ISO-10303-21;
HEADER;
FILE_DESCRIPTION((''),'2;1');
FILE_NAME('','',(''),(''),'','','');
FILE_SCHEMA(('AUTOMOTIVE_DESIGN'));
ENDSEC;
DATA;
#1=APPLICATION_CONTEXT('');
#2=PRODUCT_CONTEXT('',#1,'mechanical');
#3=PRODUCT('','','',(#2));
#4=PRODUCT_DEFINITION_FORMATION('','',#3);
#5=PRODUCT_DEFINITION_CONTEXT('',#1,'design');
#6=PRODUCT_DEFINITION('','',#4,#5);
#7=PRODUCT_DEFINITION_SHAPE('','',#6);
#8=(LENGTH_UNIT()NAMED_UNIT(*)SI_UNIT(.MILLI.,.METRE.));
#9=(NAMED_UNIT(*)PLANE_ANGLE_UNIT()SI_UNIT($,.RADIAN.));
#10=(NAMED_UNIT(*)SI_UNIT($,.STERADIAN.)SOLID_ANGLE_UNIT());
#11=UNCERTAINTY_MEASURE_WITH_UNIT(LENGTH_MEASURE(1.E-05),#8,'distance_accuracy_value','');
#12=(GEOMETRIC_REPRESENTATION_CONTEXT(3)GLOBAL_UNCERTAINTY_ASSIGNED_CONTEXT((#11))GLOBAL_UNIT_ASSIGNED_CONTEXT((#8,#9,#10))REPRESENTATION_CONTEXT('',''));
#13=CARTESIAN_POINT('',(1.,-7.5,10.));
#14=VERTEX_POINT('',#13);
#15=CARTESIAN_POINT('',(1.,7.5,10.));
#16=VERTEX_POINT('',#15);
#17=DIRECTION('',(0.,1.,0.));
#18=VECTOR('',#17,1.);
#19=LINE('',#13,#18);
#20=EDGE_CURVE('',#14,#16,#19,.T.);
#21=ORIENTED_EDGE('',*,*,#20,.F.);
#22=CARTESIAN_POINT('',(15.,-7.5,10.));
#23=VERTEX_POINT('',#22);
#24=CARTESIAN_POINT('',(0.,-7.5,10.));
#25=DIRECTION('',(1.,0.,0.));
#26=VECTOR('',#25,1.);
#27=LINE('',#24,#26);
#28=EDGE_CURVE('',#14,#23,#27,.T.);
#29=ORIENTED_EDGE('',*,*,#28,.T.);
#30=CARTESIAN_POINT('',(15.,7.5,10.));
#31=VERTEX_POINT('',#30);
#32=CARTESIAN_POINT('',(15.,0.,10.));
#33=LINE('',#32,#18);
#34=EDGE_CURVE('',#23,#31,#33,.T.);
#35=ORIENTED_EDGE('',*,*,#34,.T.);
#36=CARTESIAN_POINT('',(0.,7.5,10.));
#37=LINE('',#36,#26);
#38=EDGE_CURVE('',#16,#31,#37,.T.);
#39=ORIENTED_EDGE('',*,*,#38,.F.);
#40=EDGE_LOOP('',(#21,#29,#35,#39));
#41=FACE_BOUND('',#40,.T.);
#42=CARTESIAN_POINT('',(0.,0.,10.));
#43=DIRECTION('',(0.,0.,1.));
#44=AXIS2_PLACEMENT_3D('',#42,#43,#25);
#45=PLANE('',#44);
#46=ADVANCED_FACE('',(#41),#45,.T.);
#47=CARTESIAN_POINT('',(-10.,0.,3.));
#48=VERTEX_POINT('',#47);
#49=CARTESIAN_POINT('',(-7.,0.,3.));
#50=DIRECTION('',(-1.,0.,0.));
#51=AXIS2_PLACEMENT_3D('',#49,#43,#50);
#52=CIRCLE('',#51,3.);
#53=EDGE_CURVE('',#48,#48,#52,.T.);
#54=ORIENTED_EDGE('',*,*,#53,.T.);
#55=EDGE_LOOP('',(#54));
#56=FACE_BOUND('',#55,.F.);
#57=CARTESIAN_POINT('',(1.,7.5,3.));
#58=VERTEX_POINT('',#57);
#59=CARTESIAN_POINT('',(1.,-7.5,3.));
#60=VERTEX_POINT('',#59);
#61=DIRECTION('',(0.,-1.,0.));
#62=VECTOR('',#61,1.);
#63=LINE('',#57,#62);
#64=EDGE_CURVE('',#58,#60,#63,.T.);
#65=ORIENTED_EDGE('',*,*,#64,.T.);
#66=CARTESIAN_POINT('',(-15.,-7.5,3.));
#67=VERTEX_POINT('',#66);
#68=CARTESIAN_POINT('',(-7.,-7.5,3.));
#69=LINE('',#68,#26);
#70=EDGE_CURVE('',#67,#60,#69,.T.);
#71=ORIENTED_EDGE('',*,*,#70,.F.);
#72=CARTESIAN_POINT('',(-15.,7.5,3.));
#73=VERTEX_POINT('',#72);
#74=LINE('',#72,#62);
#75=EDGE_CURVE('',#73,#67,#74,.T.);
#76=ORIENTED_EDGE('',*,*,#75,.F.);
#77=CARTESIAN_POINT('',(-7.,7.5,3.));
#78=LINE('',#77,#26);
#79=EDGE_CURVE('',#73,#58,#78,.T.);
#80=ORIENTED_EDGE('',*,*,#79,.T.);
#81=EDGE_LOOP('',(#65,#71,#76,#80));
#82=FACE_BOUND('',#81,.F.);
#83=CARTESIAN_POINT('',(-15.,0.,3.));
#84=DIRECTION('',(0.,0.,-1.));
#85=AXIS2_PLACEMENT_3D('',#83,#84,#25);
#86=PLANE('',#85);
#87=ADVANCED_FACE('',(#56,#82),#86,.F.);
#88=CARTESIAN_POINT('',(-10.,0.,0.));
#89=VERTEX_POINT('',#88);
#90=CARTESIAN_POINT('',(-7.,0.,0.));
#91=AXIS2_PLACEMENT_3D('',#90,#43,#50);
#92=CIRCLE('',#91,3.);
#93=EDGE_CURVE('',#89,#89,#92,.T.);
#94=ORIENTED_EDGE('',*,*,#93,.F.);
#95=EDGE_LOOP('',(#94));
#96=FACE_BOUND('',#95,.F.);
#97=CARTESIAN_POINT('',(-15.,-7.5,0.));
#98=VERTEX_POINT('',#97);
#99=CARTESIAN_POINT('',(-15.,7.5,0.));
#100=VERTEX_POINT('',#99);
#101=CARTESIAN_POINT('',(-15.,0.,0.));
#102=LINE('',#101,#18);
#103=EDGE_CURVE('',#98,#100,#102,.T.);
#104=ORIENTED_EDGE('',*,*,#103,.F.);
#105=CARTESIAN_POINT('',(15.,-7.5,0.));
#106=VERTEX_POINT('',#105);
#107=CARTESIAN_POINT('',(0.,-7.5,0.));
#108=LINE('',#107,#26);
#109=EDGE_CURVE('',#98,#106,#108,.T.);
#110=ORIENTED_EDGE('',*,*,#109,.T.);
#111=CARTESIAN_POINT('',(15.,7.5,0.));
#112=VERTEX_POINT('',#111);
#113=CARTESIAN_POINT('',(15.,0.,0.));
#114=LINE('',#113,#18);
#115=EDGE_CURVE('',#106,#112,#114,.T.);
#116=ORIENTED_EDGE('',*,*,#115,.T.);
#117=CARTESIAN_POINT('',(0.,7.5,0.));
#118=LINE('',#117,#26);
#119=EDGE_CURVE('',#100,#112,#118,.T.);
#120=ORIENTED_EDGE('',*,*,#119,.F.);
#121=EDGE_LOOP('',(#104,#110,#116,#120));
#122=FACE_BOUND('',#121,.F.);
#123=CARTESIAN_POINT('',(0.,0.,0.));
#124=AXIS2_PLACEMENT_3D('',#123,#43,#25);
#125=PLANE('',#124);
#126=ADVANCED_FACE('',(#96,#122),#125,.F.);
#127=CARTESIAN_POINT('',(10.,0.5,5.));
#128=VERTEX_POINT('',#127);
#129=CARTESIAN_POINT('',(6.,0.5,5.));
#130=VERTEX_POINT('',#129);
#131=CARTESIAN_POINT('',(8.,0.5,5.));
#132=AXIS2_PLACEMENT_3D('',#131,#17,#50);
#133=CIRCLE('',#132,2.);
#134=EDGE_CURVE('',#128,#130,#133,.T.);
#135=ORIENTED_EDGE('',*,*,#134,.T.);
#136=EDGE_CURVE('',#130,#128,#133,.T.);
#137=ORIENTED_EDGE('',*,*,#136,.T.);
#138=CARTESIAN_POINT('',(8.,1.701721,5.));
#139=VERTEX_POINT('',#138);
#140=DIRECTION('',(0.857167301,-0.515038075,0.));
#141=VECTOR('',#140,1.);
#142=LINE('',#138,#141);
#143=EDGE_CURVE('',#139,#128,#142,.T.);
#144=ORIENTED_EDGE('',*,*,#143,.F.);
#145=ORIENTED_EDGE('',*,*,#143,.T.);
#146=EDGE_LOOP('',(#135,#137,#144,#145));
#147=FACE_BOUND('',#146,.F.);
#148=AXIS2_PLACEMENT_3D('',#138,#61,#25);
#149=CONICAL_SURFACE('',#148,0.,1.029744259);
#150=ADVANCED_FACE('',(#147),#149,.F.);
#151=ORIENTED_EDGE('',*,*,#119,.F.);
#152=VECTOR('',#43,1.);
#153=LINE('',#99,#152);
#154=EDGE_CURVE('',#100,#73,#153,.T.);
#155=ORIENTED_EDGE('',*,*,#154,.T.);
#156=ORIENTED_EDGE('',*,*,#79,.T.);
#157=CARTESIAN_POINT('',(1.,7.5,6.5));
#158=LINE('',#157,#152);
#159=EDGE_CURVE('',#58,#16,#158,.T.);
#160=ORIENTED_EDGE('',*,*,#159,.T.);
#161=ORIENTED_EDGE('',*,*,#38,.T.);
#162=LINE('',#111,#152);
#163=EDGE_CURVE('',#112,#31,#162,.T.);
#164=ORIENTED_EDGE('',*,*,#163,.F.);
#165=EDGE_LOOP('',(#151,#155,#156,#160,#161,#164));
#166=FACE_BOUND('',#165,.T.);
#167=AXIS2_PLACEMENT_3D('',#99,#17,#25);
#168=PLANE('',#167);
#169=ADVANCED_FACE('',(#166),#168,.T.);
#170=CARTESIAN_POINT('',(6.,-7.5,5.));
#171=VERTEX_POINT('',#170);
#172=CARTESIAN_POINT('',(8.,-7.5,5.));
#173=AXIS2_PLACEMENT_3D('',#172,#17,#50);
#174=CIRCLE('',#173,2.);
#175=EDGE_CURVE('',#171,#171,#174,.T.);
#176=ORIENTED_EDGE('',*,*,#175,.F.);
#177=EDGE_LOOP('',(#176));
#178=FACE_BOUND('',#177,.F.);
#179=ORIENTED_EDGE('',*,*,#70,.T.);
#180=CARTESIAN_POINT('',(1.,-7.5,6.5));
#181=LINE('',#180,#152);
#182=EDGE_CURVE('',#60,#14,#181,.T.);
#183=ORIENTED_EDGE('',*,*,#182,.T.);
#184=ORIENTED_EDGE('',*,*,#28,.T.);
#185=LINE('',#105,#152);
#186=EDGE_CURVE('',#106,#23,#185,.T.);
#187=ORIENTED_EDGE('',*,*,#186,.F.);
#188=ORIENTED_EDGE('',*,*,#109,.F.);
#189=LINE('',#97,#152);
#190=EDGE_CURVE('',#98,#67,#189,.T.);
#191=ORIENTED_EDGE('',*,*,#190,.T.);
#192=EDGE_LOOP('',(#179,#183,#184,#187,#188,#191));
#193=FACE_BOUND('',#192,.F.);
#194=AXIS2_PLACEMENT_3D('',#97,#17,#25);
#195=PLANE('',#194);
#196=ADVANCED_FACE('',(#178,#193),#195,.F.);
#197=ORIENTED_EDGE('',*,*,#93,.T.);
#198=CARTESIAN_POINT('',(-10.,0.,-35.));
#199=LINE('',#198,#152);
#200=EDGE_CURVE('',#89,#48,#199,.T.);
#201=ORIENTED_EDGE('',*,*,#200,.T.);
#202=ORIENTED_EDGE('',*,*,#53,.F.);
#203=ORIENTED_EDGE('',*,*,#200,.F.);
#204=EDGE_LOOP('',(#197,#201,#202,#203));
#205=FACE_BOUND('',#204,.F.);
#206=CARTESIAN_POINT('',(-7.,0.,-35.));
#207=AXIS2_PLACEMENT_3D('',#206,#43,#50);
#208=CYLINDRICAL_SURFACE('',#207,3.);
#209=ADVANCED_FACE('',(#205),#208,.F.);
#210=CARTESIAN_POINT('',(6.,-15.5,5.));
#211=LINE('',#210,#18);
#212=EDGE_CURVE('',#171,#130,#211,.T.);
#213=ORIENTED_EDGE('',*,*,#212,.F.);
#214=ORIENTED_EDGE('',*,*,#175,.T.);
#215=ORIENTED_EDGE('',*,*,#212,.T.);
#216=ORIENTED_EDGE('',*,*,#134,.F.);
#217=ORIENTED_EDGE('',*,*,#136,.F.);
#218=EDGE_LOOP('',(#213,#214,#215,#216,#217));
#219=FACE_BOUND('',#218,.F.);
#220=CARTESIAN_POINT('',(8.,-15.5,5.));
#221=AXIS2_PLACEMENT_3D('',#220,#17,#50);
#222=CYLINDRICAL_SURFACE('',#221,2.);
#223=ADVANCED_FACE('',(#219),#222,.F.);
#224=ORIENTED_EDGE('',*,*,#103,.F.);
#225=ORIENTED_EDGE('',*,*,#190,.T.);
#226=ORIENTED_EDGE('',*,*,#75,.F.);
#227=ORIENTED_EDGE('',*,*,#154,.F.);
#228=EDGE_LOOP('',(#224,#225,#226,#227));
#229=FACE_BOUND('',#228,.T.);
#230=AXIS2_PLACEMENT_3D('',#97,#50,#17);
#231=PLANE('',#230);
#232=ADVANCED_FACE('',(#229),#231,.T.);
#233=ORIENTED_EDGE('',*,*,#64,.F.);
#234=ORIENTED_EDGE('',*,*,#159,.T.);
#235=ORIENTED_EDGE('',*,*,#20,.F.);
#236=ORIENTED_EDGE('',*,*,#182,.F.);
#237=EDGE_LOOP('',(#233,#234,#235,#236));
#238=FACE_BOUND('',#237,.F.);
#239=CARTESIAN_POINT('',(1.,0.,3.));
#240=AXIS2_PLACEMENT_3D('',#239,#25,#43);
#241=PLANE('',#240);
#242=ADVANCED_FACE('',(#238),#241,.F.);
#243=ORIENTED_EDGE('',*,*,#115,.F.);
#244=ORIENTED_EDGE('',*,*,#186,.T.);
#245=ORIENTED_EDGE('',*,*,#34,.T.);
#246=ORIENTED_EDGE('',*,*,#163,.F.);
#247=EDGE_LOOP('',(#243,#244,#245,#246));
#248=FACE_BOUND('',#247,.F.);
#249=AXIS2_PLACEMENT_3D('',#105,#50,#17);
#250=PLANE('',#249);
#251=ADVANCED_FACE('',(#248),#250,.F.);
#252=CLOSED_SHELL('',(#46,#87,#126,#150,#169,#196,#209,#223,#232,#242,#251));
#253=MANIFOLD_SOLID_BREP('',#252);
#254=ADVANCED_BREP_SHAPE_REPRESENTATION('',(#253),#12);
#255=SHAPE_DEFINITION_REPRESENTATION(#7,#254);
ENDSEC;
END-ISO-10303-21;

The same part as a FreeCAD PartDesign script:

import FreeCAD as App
import Part
import Sketcher

doc = App.newDocument("Part")
body = doc.addObject("PartDesign::Body", "Body")

# Sketch on XY plane
sketch1 = body.newObject("Sketcher::SketchObject", "Sketch")
sketch1.AttachmentSupport = (doc.getObject("XY_Plane"), [""])
sketch1.MapMode = "FlatFace"
sketch1.addGeometry(Part.LineSegment(App.Vector(-15, 8, 0), App.Vector(-15, -8, 0)), False)
sketch1.addGeometry(Part.LineSegment(App.Vector(-15, -8, 0), App.Vector(15, -8, 0)), False)
sketch1.addGeometry(Part.LineSegment(App.Vector(15, -8, 0), App.Vector(15, 8, 0)), False)
sketch1.addGeometry(Part.LineSegment(App.Vector(15, 8, 0), App.Vector(-15, 8, 0)), False)
sketch1.addConstraint(Sketcher.Constraint("Coincident", 0, 2, 1, 1))
sketch1.addConstraint(Sketcher.Constraint("Coincident", 1, 2, 2, 1))
sketch1.addConstraint(Sketcher.Constraint("Coincident", 2, 2, 3, 1))
sketch1.addConstraint(Sketcher.Constraint("Coincident", 3, 2, 0, 1))
sketch1.addConstraint(Sketcher.Constraint("Vertical", 0))
sketch1.addConstraint(Sketcher.Constraint("Horizontal", 1))
sketch1.addConstraint(Sketcher.Constraint("Vertical", 2))
sketch1.addConstraint(Sketcher.Constraint("Horizontal", 3))
sketch1.addConstraint(Sketcher.Constraint("Symmetric", 0, 2, 2, 2, -1, 1))
sketch1.addConstraint(Sketcher.Constraint("DistanceX", 1, 1, 1, 2, 30.0))
sketch1.addConstraint(Sketcher.Constraint("DistanceY", 0, 2, 0, 1, 15.0))
pad1 = body.newObject("PartDesign::Pad", "Pad")
pad1.Profile = sketch1
pad1.Length = 10

# Sketch on XY plane
sketch2 = body.newObject("Sketcher::SketchObject", "Sketch001")
sketch2.AttachmentSupport = (doc.getObject("XY_Plane"), [""])
sketch2.MapMode = "FlatFace"
sketch2.addGeometry(Part.Circle(App.Vector(-7, 0, 0), App.Vector(0, 0, 1), 3), False)
sketch2.addConstraint(Sketcher.Constraint("PointOnObject", 0, 3, -1))
sketch2.addConstraint(Sketcher.Constraint("Diameter", 0, 6.0))
sketch2.addConstraint(Sketcher.Constraint("DistanceX", 0, 3, -1, 1, 7.0))
doc.recompute()
hole = body.newObject("PartDesign::Hole", "Hole")
hole.Profile = sketch2
hole.ThreadType = "None"
hole.Diameter = 6
hole.DepthType = "ThroughAll"
hole.Reversed = True

# Sketch on XZ plane
sketch3 = body.newObject("Sketcher::SketchObject", "Sketch002")
sketch3.AttachmentSupport = (doc.getObject("XZ_Plane"), [""])
sketch3.MapMode = "FlatFace"
sketch3.AttachmentOffset = App.Placement(App.Vector(0, 0, 7.5), App.Rotation())
sketch3.addGeometry(Part.Circle(App.Vector(8, 5, 0), App.Vector(0, 0, 1), 2), False)
sketch3.addConstraint(Sketcher.Constraint("Diameter", 0, 4.0))
sketch3.addConstraint(Sketcher.Constraint("DistanceX", -1, 1, 0, 3, 8.0))
sketch3.addConstraint(Sketcher.Constraint("DistanceY", -1, 1, 0, 3, 5.0))
doc.recompute()
hole2 = body.newObject("PartDesign::Hole", "Hole001")
hole2.Profile = sketch3
hole2.ThreadType = "None"
hole2.Diameter = 4
hole2.DepthType = "Dimension"
hole2.Depth = 8
hole2.DrillPoint = "Angled"
hole2.DrillPointAngle = 118

# Sketch on XZ plane
sketch4 = body.newObject("Sketcher::SketchObject", "Sketch003")
sketch4.AttachmentSupport = (doc.getObject("XZ_Plane"), [""])
sketch4.MapMode = "FlatFace"
sketch4.addGeometry(Part.LineSegment(App.Vector(-15, 10, 0), App.Vector(-15, 3, 0)), False)
sketch4.addGeometry(Part.LineSegment(App.Vector(-15, 3, 0), App.Vector(1, 3, 0)), False)
sketch4.addGeometry(Part.LineSegment(App.Vector(1, 3, 0), App.Vector(1, 10, 0)), False)
sketch4.addGeometry(Part.LineSegment(App.Vector(1, 10, 0), App.Vector(-15, 10, 0)), False)
sketch4.addConstraint(Sketcher.Constraint("Coincident", 0, 2, 1, 1))
sketch4.addConstraint(Sketcher.Constraint("Coincident", 1, 2, 2, 1))
sketch4.addConstraint(Sketcher.Constraint("Coincident", 2, 2, 3, 1))
sketch4.addConstraint(Sketcher.Constraint("Coincident", 3, 2, 0, 1))
sketch4.addConstraint(Sketcher.Constraint("Vertical", 0))
sketch4.addConstraint(Sketcher.Constraint("Horizontal", 1))
sketch4.addConstraint(Sketcher.Constraint("Vertical", 2))
sketch4.addConstraint(Sketcher.Constraint("Horizontal", 3))
sketch4.addConstraint(Sketcher.Constraint("DistanceX", 1, 1, 1, 2, 16.0))
sketch4.addConstraint(Sketcher.Constraint("DistanceY", 0, 2, 0, 1, 7.0))
sketch4.addConstraint(Sketcher.Constraint("DistanceX", 0, 2, -1, 1, 15.0))
sketch4.addConstraint(Sketcher.Constraint("DistanceY", -1, 1, 0, 2, 3.0))
pocket1 = body.newObject("PartDesign::Pocket", "Pocket")
pocket1.Profile = sketch4
pocket1.Length = 15
pocket1.Midplane = True

doc.recompute()
